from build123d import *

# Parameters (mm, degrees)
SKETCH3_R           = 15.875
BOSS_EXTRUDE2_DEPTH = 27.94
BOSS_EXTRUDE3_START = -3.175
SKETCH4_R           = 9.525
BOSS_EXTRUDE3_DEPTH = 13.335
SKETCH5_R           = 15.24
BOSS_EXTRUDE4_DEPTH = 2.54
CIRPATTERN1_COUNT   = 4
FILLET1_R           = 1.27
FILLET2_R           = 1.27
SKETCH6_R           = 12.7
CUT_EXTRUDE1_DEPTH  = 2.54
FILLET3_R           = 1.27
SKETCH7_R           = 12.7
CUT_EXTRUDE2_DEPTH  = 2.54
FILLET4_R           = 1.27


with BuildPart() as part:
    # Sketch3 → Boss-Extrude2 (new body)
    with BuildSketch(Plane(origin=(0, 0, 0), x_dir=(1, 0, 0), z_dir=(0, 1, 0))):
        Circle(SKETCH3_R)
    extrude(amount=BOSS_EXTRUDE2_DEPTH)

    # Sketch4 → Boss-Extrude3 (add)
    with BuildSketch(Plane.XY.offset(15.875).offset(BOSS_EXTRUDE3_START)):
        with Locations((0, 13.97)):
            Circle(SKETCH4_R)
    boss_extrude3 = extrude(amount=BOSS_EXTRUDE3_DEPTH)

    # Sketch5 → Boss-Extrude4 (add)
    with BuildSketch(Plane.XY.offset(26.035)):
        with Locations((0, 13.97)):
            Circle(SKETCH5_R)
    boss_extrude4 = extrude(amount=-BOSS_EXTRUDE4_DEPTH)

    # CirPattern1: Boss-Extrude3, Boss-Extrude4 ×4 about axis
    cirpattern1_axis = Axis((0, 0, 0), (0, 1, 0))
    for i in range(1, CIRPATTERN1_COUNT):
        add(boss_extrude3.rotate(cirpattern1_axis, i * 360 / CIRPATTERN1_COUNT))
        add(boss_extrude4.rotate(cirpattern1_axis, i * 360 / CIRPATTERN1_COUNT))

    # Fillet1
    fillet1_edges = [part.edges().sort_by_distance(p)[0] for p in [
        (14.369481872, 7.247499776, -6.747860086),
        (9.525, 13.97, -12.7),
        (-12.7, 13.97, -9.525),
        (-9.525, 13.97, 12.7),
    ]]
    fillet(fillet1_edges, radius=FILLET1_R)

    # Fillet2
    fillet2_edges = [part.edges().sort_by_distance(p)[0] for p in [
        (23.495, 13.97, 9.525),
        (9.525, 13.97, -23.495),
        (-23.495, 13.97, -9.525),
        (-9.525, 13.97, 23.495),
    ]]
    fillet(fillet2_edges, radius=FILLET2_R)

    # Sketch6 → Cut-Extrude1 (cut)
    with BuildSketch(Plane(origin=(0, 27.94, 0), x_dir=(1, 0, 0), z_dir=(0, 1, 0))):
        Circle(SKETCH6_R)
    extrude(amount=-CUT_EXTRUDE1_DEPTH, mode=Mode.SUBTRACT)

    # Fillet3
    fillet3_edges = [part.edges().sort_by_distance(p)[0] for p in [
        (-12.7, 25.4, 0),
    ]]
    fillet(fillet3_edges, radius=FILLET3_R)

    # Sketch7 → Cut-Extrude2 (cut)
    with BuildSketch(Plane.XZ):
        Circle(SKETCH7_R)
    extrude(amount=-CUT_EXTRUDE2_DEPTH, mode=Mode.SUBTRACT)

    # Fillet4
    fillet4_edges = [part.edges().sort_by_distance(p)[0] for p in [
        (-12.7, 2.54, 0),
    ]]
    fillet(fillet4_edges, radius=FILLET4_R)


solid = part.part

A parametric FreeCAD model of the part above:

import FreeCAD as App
import Part
import Sketcher
from FreeCAD import Vector
Q = App.Units.Quantity


def edges_at(feature, points):
    """Names of the edges that pass closest to the given points."""
    edges = feature.Shape.Edges
    near = lambda p: min(range(len(edges)), key=lambda i: edges[i].distToShape(Part.Vertex(*p))[0])
    return sorted({f"Edge{near(p) + 1}" for p in points})

doc = App.newDocument("Part")
params = doc.addObject("Spreadsheet::Sheet", "Params")
for row, (alias, value) in enumerate([
    ("sketch1_diameter", "1.25 in"),
    ("pad1_length", "1.1 in"),
    ("sketch2_diameter", "0.75 in"),
    ("pad2_length", "0.525 in"),
    ("sketch3_diameter", "1.2 in"),
    ("pad3_length", "0.1 in"),
    ("fillet_radius", "0.05 in"),
    ("fillet2_radius", "0.05 in"),
    ("sketch4_diameter", "1 in"),
    ("pocket1_length", "0.1 in"),
    ("fillet3_radius", "0.05 in"),
    ("sketch5_diameter", "1 in"),
    ("pocket2_length", "0.1 in"),
    ("fillet4_radius", "0.05 in"),
], start=1):
    params.set(f"A{row}", alias)
    params.set(f"B{row}", "=" + value)
    params.setAlias(f"B{row}", alias)

body = doc.addObject("PartDesign::Body", "Body")

sketch1 = body.newObject("Sketcher::SketchObject", "Sketch")
sketch1.AttachmentSupport = (doc.getObject("XZ_Plane"), [""])
sketch1.MapMode = "FlatFace"
sketch1.addGeometry(Part.Circle(Vector(0, 0, 0), Vector(0, 0, 1), 16), False)
sketch1.addConstraint([
    Sketcher.Constraint("Coincident", 0, 3, -1, 1),
    Sketcher.Constraint("Diameter", 0, Q("1.25 in")),
])
sketch1.setExpression("Constraints[1]", "Params.sketch1_diameter")
pad1 = body.newObject("PartDesign::Pad", "Pad")
pad1.Profile = sketch1
pad1.setExpression("Length", "Params.pad1_length")
pad1.Reversed = True

sketch2 = body.newObject("Sketcher::SketchObject", "Sketch001")
sketch2.AttachmentSupport = (doc.getObject("XY_Plane"), [""])
sketch2.MapMode = "FlatFace"
sketch2.AttachmentOffset = App.Placement(Vector(0, 0, 0.5 * 25.4), App.Rotation())
sketch2.addGeometry(Part.Circle(Vector(0, 14, 0), Vector(0, 0, 1), 10), False)
sketch2.addConstraint([
    Sketcher.Constraint("PointOnObject", 0, 3, -2),
    Sketcher.Constraint("Diameter", 0, Q("0.75 in")),
    Sketcher.Constraint("DistanceY", -1, 1, 0, 3, Q("0.55 in")),
])
sketch2.setExpression("Constraints[1]", "Params.sketch2_diameter")
pad2 = body.newObject("PartDesign::Pad", "Pad001")
pad2.Profile = sketch2
pad2.setExpression("Length", "Params.pad2_length")

sketch3 = body.newObject("Sketcher::SketchObject", "Sketch002")
sketch3.AttachmentSupport = (doc.getObject("XY_Plane"), [""])
sketch3.MapMode = "FlatFace"
sketch3.AttachmentOffset = App.Placement(Vector(0, 0, 1.025 * 25.4), App.Rotation())
sketch3.addGeometry(Part.Circle(Vector(0, 14, 0), Vector(0, 0, 1), 15), False)
sketch3.addConstraint([
    Sketcher.Constraint("PointOnObject", 0, 3, -2),
    Sketcher.Constraint("Diameter", 0, Q("1.2 in")),
    Sketcher.Constraint("DistanceY", -1, 1, 0, 3, Q("0.55 in")),
])
sketch3.setExpression("Constraints[1]", "Params.sketch3_diameter")
pad3 = body.newObject("PartDesign::Pad", "Pad002")
pad3.Profile = sketch3
pad3.setExpression("Length", "Params.pad3_length")
pad3.Reversed = True
doc.recompute()

polarpattern = body.newObject("PartDesign::PolarPattern", "PolarPattern")
polarpattern.Originals = [pad2, pad3]
polarpattern.Axis = (doc.getObject("Y_Axis"), [""])
polarpattern.Angle = 360
polarpattern.Occurrences = 4
body.Tip = polarpattern
doc.recompute()

fillet = body.newObject("PartDesign::Fillet", "Fillet")
fillet.Base = (polarpattern, edges_at(polarpattern, [
    (14.369, 7.247, -6.748),
    (9.525, 13.97, -12.7),
    (-12.7, 13.97, -9.525),
    (-9.525, 13.97, 12.7),
]))
fillet.setExpression("Radius", "Params.fillet_radius")
doc.recompute()

fillet2 = body.newObject("PartDesign::Fillet", "Fillet001")
fillet2.Base = (fillet, edges_at(fillet, [
    (23.495, 13.97, 9.525),
    (9.525, 13.97, -23.495),
    (-23.495, 13.97, -9.525),
    (-9.525, 13.97, 23.495),
]))
fillet2.setExpression("Radius", "Params.fillet2_radius")

sketch4 = body.newObject("Sketcher::SketchObject", "Sketch003")
sketch4.AttachmentSupport = (doc.getObject("XZ_Plane"), [""])
sketch4.MapMode = "FlatFace"
sketch4.AttachmentOffset = App.Placement(Vector(0, 0, -1.1 * 25.4), App.Rotation())
sketch4.addGeometry(Part.Circle(Vector(0, 0, 0), Vector(0, 0, 1), 13), False)
sketch4.addConstraint([
    Sketcher.Constraint("Coincident", 0, 3, -1, 1),
    Sketcher.Constraint("Diameter", 0, Q("1 in")),
])
sketch4.setExpression("Constraints[1]", "Params.sketch4_diameter")
pocket1 = body.newObject("PartDesign::Pocket", "Pocket")
pocket1.Profile = sketch4
pocket1.setExpression("Length", "Params.pocket1_length")
pocket1.Reversed = True
doc.recompute()

fillet3 = body.newObject("PartDesign::Fillet", "Fillet002")
fillet3.Base = (pocket1, edges_at(pocket1, [(-12.7, 25.4, 0)]))
fillet3.setExpression("Radius", "Params.fillet3_radius")

sketch5 = body.newObject("Sketcher::SketchObject", "Sketch004")
sketch5.AttachmentSupport = (doc.getObject("XZ_Plane"), [""])
sketch5.MapMode = "FlatFace"
sketch5.addGeometry(Part.Circle(Vector(0, 0, 0), Vector(0, 0, 1), 13), False)
sketch5.addConstraint([
    Sketcher.Constraint("Coincident", 0, 3, -1, 1),
    Sketcher.Constraint("Diameter", 0, Q("1 in")),
])
sketch5.setExpression("Constraints[1]", "Params.sketch5_diameter")
pocket2 = body.newObject("PartDesign::Pocket", "Pocket001")
pocket2.Profile = sketch5
pocket2.setExpression("Length", "Params.pocket2_length")
doc.recompute()

fillet4 = body.newObject("PartDesign::Fillet", "Fillet003")
fillet4.Base = (pocket2, edges_at(pocket2, [(-12.7, 2.54, 0)]))
fillet4.setExpression("Radius", "Params.fillet4_radius")

doc.recompute()
